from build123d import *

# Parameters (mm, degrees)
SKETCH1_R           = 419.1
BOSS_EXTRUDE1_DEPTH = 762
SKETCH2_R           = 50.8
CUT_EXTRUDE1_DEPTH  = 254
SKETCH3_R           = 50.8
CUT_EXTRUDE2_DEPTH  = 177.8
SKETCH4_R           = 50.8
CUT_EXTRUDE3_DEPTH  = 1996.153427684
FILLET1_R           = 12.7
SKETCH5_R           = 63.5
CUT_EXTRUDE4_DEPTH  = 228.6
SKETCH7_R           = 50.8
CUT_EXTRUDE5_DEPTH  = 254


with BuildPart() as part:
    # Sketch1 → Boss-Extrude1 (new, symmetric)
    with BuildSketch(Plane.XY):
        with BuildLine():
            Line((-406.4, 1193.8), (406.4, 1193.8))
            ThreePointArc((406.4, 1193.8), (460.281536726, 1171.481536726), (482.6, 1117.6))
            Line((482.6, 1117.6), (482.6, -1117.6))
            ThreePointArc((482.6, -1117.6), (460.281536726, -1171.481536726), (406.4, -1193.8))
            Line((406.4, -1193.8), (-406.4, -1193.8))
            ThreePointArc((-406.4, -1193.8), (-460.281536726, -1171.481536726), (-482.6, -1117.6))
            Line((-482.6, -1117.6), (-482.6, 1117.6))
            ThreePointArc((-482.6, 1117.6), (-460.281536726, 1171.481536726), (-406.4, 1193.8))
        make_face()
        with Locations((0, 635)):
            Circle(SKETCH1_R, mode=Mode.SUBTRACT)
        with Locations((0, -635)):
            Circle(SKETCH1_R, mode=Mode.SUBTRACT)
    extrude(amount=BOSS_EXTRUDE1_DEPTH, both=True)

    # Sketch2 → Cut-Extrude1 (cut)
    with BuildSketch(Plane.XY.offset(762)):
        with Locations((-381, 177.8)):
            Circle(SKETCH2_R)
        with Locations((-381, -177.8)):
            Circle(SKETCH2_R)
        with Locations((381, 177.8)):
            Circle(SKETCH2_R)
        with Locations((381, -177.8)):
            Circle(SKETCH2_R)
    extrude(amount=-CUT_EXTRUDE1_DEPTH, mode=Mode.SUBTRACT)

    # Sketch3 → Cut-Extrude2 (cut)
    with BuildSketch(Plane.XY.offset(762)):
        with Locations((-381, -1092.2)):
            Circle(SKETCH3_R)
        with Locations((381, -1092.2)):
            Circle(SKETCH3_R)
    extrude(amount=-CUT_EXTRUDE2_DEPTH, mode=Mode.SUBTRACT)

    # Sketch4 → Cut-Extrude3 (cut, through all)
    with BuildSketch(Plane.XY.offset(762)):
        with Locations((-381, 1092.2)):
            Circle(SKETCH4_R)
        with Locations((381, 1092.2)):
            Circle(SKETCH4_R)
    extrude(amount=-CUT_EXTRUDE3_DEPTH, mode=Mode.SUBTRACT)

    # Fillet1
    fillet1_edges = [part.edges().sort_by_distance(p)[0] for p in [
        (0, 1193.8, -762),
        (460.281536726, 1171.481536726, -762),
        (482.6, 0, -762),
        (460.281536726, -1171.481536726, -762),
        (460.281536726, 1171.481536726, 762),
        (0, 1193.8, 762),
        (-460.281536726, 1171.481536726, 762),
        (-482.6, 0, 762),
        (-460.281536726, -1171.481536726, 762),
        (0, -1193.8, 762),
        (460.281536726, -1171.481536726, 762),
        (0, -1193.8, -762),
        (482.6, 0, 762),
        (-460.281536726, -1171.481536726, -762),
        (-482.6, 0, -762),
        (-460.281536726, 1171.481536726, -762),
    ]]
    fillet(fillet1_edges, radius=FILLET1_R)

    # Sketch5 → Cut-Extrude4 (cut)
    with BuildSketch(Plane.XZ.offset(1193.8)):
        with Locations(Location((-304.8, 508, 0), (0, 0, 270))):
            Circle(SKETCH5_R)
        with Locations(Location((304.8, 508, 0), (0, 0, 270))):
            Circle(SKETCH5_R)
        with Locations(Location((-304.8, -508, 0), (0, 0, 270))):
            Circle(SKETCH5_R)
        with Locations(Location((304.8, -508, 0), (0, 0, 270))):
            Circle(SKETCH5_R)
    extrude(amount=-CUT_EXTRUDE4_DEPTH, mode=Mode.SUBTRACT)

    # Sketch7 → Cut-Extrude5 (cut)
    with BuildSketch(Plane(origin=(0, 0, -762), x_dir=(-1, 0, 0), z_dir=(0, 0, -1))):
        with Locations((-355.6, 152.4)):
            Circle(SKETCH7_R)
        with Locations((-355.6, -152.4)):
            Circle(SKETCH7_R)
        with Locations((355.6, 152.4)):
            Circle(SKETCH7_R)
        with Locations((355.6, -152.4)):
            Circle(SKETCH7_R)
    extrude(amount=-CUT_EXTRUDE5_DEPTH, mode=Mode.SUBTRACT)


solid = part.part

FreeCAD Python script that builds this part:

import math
import FreeCAD as App
import Part
import Sketcher
Q = App.Units.Quantity


def edges_at(feature, points):
    """Names of the edges that pass closest to the given points."""
    edges = feature.Shape.Edges
    near = lambda p: min(range(len(edges)), key=lambda i: edges[i].distToShape(Part.Vertex(*p))[0])
    return sorted({f"Edge{near(p) + 1}" for p in points})

doc = App.newDocument("Part")
body = doc.addObject("PartDesign::Body", "Body")

sketch1 = body.newObject("Sketcher::SketchObject", "Sketch")
sketch1.AttachmentSupport = (doc.getObject("XY_Plane"), [""])
sketch1.MapMode = "FlatFace"
sketch1.addGeometry(Part.LineSegment(App.Vector(406, 1194, 0), App.Vector(-406, 1194, 0)), False)
sketch1.addGeometry(Part.ArcOfCircle(Part.Circle(App.Vector(-406, 1118, 0), App.Vector(0, 0, 1), 76), math.radians(90), math.radians(180)), False)
sketch1.addGeometry(Part.LineSegment(App.Vector(-483, 1118, 0), App.Vector(-483, -1118, 0)), False)
sketch1.addGeometry(Part.ArcOfCircle(Part.Circle(App.Vector(-406, -1118, 0), App.Vector(0, 0, 1), 76), math.radians(-180), math.radians(-90)), False)
sketch1.addGeometry(Part.LineSegment(App.Vector(-406, -1194, 0), App.Vector(406, -1194, 0)), False)
sketch1.addGeometry(Part.ArcOfCircle(Part.Circle(App.Vector(406, -1118, 0), App.Vector(0, 0, 1), 76), math.radians(-90), math.radians(0)), False)
sketch1.addGeometry(Part.LineSegment(App.Vector(483, -1118, 0), App.Vector(483, 1118, 0)), False)
sketch1.addGeometry(Part.ArcOfCircle(Part.Circle(App.Vector(406, 1118, 0), App.Vector(0, 0, 1), 76), math.radians(0), math.radians(90)), False)
sketch1.addGeometry(Part.Circle(App.Vector(0, -635, 0), App.Vector(0, 0, 1), 419), False)
sketch1.addGeometry(Part.Circle(App.Vector(0, 635, 0), App.Vector(0, 0, 1), 419), False)
sketch1.addConstraint(Sketcher.Constraint("Tangent", 0, 2, 1, 1))
sketch1.addConstraint(Sketcher.Constraint("Tangent", 1, 2, 2, 1))
sketch1.addConstraint(Sketcher.Constraint("Tangent", 2, 2, 3, 1))
sketch1.addConstraint(Sketcher.Constraint("Tangent", 3, 2, 4, 1))
sketch1.addConstraint(Sketcher.Constraint("Tangent", 4, 2, 5, 1))
sketch1.addConstraint(Sketcher.Constraint("Tangent", 5, 2, 6, 1))
sketch1.addConstraint(Sketcher.Constraint("Tangent", 6, 2, 7, 1))
sketch1.addConstraint(Sketcher.Constraint("Tangent", 7, 2, 0, 1))
sketch1.addConstraint(Sketcher.Constraint("Horizontal", 0))
sketch1.addConstraint(Sketcher.Constraint("Vertical", 2))
sketch1.addConstraint(Sketcher.Constraint("Horizontal", 4))
sketch1.addConstraint(Sketcher.Constraint("Vertical", 6))
sketch1.addConstraint(Sketcher.Constraint("Equal", 1, 3))
sketch1.addConstraint(Sketcher.Constraint("Equal", 3, 5))
sketch1.addConstraint(Sketcher.Constraint("Equal", 5, 7))
sketch1.addConstraint(Sketcher.Constraint("Equal", 8, 9))
sketch1.addConstraint(Sketcher.Constraint("Symmetric", 1, 3, 5, 3, -1, 1))
sketch1.addConstraint(Sketcher.Constraint("Symmetric", 8, 3, 9, 3, -1, 1))
sketch1.addConstraint(Sketcher.Constraint("PointOnObject", 8, 3, -2))
sketch1.addConstraint(Sketcher.Constraint("Diameter", 8, Q("33 in")))
sketch1.addConstraint(Sketcher.Constraint("Radius", 1, Q("3 in")))
sketch1.addConstraint(Sketcher.Constraint("DistanceX", 0, 2, 0, 1, Q("32 in")))
sketch1.addConstraint(Sketcher.Constraint("DistanceY", 2, 2, 2, 1, Q("88 in")))
sketch1.addConstraint(Sketcher.Constraint("DistanceY", 8, 3, -1, 1, Q("25 in")))
pad1 = body.newObject("PartDesign::Pad", "Pad")
pad1.Profile = sketch1
pad1.Length = Q("60 in")
pad1.Midplane = True

sketch2 = body.newObject("Sketcher::SketchObject", "Sketch001")
sketch2.AttachmentSupport = (doc.getObject("XY_Plane"), [""])
sketch2.MapMode = "FlatFace"
sketch2.AttachmentOffset = App.Placement(App.Vector(0, 0, 30 * 25.4), App.Rotation())
sketch2.addGeometry(Part.Circle(App.Vector(-381, 178, 0), App.Vector(0, 0, 1), 51), False)
sketch2.addGeometry(Part.Circle(App.Vector(-381, -178, 0), App.Vector(0, 0, 1), 51), False)
sketch2.addGeometry(Part.Circle(App.Vector(381, 178, 0), App.Vector(0, 0, 1), 51), False)
sketch2.addGeometry(Part.Circle(App.Vector(381, -178, 0), App.Vector(0, 0, 1), 51), False)
sketch2.addConstraint(Sketcher.Constraint("Equal", 0, 1))
sketch2.addConstraint(Sketcher.Constraint("Equal", 1, 2))
sketch2.addConstraint(Sketcher.Constraint("Equal", 2, 3))
sketch2.addConstraint(Sketcher.Constraint("Symmetric", 1, 3, 2, 3, -1, 1))
sketch2.addConstraint(Sketcher.Constraint("Symmetric", 0, 3, 3, 3, -1, 1))
sketch2.addConstraint(Sketcher.Constraint("Symmetric", 0, 3, 2, 3, -2))
sketch2.addConstraint(Sketcher.Constraint("Diameter", 0, Q("4 in")))
sketch2.addConstraint(Sketcher.Constraint("DistanceX", 0, 3, -1, 1, Q("15 in")))
sketch2.addConstraint(Sketcher.Constraint("DistanceY", -1, 1, 0, 3, Q("7 in")))
pocket1 = body.newObject("PartDesign::Pocket", "Pocket")
pocket1.Profile = sketch2
pocket1.Length = Q("10 in")

sketch3 = body.newObject("Sketcher::SketchObject", "Sketch002")
sketch3.AttachmentSupport = (doc.getObject("XY_Plane"), [""])
sketch3.MapMode = "FlatFace"
sketch3.AttachmentOffset = App.Placement(App.Vector(0, 0, 30 * 25.4), App.Rotation())
sketch3.addGeometry(Part.Circle(App.Vector(-381, -1092, 0), App.Vector(0, 0, 1), 51), False)
sketch3.addGeometry(Part.Circle(App.Vector(381, -1092, 0), App.Vector(0, 0, 1), 51), False)
sketch3.addConstraint(Sketcher.Constraint("Equal", 0, 1))
sketch3.addConstraint(Sketcher.Constraint("Symmetric", 0, 3, 1, 3, -2))
sketch3.addConstraint(Sketcher.Constraint("Diameter", 0, Q("4 in")))
sketch3.addConstraint(Sketcher.Constraint("DistanceX", 0, 3, -1, 1, Q("15 in")))
sketch3.addConstraint(Sketcher.Constraint("DistanceY", 0, 3, -1, 1, Q("43 in")))
pocket2 = body.newObject("PartDesign::Pocket", "Pocket001")
pocket2.Profile = sketch3
pocket2.Length = Q("7 in")

sketch4 = body.newObject("Sketcher::SketchObject", "Sketch003")
sketch4.AttachmentSupport = (doc.getObject("XY_Plane"), [""])
sketch4.MapMode = "FlatFace"
sketch4.AttachmentOffset = App.Placement(App.Vector(0, 0, 30 * 25.4), App.Rotation())
sketch4.addGeometry(Part.Circle(App.Vector(-381, 1092, 0), App.Vector(0, 0, 1), 51), False)
sketch4.addGeometry(Part.Circle(App.Vector(381, 1092, 0), App.Vector(0, 0, 1), 51), False)
sketch4.addConstraint(Sketcher.Constraint("Equal", 0, 1))
sketch4.addConstraint(Sketcher.Constraint("Symmetric", 0, 3, 1, 3, -2))
sketch4.addConstraint(Sketcher.Constraint("Diameter", 0, Q("4 in")))
sketch4.addConstraint(Sketcher.Constraint("DistanceX", 0, 3, -1, 1, Q("15 in")))
sketch4.addConstraint(Sketcher.Constraint("DistanceY", -1, 1, 0, 3, Q("43 in")))
pocket3 = body.newObject("PartDesign::Pocket", "Pocket002")
pocket3.Profile = sketch4
pocket3.Type = "ThroughAll"
doc.recompute()

fillet = body.newObject("PartDesign::Fillet", "Fillet")
fillet.Base = (pocket3, edges_at(pocket3, [
    (0, 1193.8, -762),
    (460.282, 1171.482, -762),
    (482.6, 0, -762),
    (460.282, -1171.482, -762),
    (460.282, 1171.482, 762),
    (0, 1193.8, 762),
    (-460.282, 1171.482, 762),
    (-482.6, 0, 762),
    (-460.282, -1171.482, 762),
    (0, -1193.8, 762),
    (460.282, -1171.482, 762),
    (0, -1193.8, -762),
    (482.6, 0, 762),
    (-460.282, -1171.482, -762),
    (-482.6, 0, -762),
    (-460.282, 1171.482, -762),
]))
fillet.Radius = Q("0.5 in")

sketch5 = body.newObject("Sketcher::SketchObject", "Sketch004")
sketch5.AttachmentSupport = (doc.getObject("XZ_Plane"), [""])
sketch5.MapMode = "FlatFace"
sketch5.AttachmentOffset = App.Placement(App.Vector(0, 0, 47 * 25.4), App.Rotation())
sketch5.addGeometry(Part.Circle(App.Vector(-305, 508, 0), App.Vector(0, 0, 1), 64), False)
sketch5.addGeometry(Part.Circle(App.Vector(305, 508, 0), App.Vector(0, 0, 1), 64), False)
sketch5.addGeometry(Part.Circle(App.Vector(-305, -508, 0), App.Vector(0, 0, 1), 64), False)
sketch5.addGeometry(Part.Circle(App.Vector(305, -508, 0), App.Vector(0, 0, 1), 64), False)
sketch5.addConstraint(Sketcher.Constraint("Equal", 0, 1))
sketch5.addConstraint(Sketcher.Constraint("Equal", 1, 2))
sketch5.addConstraint(Sketcher.Constraint("Equal", 2, 3))
sketch5.addConstraint(Sketcher.Constraint("Symmetric", 1, 3, 2, 3, -1, 1))
sketch5.addConstraint(Sketcher.Constraint("Symmetric", 0, 3, 3, 3, -1, 1))
sketch5.addConstraint(Sketcher.Constraint("Symmetric", 0, 3, 1, 3, -2))
sketch5.addConstraint(Sketcher.Constraint("Diameter", 0, Q("5 in")))
sketch5.addConstraint(Sketcher.Constraint("DistanceX", 0, 3, -1, 1, Q("12 in")))
sketch5.addConstraint(Sketcher.Constraint("DistanceY", -1, 1, 0, 3, Q("20 in")))
pocket4 = body.newObject("PartDesign::Pocket", "Pocket003")
pocket4.Profile = sketch5
pocket4.Length = Q("9 in")

sketch6 = body.newObject("Sketcher::SketchObject", "Sketch005")
sketch6.AttachmentSupport = (doc.getObject("XY_Plane"), [""])
sketch6.MapMode = "FlatFace"
sketch6.AttachmentOffset = App.Placement(App.Vector(0, 0, -30 * 25.4), App.Rotation())
sketch6.addGeometry(Part.Circle(App.Vector(356, 152, 0), App.Vector(0, 0, 1), 51), False)
sketch6.addGeometry(Part.Circle(App.Vector(356, -152, 0), App.Vector(0, 0, 1), 51), False)
sketch6.addGeometry(Part.Circle(App.Vector(-356, 152, 0), App.Vector(0, 0, 1), 51), False)
sketch6.addGeometry(Part.Circle(App.Vector(-356, -152, 0), App.Vector(0, 0, 1), 51), False)
sketch6.addConstraint(Sketcher.Constraint("Equal", 0, 1))
sketch6.addConstraint(Sketcher.Constraint("Equal", 1, 2))
sketch6.addConstraint(Sketcher.Constraint("Equal", 2, 3))
sketch6.addConstraint(Sketcher.Constraint("Symmetric", 1, 3, 2, 3, -1, 1))
sketch6.addConstraint(Sketcher.Constraint("Symmetric", 0, 3, 3, 3, -1, 1))
sketch6.addConstraint(Sketcher.Constraint("Symmetric", 0, 3, 2, 3, -2))
sketch6.addConstraint(Sketcher.Constraint("Diameter", 0, Q("4 in")))
sketch6.addConstraint(Sketcher.Constraint("DistanceX", -1, 1, 0, 3, Q("14 in")))
sketch6.addConstraint(Sketcher.Constraint("DistanceY", -1, 1, 0, 3, Q("6 in")))
pocket5 = body.newObject("PartDesign::Pocket", "Pocket004")
pocket5.Profile = sketch6
pocket5.Length = Q("10 in")
pocket5.Reversed = True

doc.recompute()
